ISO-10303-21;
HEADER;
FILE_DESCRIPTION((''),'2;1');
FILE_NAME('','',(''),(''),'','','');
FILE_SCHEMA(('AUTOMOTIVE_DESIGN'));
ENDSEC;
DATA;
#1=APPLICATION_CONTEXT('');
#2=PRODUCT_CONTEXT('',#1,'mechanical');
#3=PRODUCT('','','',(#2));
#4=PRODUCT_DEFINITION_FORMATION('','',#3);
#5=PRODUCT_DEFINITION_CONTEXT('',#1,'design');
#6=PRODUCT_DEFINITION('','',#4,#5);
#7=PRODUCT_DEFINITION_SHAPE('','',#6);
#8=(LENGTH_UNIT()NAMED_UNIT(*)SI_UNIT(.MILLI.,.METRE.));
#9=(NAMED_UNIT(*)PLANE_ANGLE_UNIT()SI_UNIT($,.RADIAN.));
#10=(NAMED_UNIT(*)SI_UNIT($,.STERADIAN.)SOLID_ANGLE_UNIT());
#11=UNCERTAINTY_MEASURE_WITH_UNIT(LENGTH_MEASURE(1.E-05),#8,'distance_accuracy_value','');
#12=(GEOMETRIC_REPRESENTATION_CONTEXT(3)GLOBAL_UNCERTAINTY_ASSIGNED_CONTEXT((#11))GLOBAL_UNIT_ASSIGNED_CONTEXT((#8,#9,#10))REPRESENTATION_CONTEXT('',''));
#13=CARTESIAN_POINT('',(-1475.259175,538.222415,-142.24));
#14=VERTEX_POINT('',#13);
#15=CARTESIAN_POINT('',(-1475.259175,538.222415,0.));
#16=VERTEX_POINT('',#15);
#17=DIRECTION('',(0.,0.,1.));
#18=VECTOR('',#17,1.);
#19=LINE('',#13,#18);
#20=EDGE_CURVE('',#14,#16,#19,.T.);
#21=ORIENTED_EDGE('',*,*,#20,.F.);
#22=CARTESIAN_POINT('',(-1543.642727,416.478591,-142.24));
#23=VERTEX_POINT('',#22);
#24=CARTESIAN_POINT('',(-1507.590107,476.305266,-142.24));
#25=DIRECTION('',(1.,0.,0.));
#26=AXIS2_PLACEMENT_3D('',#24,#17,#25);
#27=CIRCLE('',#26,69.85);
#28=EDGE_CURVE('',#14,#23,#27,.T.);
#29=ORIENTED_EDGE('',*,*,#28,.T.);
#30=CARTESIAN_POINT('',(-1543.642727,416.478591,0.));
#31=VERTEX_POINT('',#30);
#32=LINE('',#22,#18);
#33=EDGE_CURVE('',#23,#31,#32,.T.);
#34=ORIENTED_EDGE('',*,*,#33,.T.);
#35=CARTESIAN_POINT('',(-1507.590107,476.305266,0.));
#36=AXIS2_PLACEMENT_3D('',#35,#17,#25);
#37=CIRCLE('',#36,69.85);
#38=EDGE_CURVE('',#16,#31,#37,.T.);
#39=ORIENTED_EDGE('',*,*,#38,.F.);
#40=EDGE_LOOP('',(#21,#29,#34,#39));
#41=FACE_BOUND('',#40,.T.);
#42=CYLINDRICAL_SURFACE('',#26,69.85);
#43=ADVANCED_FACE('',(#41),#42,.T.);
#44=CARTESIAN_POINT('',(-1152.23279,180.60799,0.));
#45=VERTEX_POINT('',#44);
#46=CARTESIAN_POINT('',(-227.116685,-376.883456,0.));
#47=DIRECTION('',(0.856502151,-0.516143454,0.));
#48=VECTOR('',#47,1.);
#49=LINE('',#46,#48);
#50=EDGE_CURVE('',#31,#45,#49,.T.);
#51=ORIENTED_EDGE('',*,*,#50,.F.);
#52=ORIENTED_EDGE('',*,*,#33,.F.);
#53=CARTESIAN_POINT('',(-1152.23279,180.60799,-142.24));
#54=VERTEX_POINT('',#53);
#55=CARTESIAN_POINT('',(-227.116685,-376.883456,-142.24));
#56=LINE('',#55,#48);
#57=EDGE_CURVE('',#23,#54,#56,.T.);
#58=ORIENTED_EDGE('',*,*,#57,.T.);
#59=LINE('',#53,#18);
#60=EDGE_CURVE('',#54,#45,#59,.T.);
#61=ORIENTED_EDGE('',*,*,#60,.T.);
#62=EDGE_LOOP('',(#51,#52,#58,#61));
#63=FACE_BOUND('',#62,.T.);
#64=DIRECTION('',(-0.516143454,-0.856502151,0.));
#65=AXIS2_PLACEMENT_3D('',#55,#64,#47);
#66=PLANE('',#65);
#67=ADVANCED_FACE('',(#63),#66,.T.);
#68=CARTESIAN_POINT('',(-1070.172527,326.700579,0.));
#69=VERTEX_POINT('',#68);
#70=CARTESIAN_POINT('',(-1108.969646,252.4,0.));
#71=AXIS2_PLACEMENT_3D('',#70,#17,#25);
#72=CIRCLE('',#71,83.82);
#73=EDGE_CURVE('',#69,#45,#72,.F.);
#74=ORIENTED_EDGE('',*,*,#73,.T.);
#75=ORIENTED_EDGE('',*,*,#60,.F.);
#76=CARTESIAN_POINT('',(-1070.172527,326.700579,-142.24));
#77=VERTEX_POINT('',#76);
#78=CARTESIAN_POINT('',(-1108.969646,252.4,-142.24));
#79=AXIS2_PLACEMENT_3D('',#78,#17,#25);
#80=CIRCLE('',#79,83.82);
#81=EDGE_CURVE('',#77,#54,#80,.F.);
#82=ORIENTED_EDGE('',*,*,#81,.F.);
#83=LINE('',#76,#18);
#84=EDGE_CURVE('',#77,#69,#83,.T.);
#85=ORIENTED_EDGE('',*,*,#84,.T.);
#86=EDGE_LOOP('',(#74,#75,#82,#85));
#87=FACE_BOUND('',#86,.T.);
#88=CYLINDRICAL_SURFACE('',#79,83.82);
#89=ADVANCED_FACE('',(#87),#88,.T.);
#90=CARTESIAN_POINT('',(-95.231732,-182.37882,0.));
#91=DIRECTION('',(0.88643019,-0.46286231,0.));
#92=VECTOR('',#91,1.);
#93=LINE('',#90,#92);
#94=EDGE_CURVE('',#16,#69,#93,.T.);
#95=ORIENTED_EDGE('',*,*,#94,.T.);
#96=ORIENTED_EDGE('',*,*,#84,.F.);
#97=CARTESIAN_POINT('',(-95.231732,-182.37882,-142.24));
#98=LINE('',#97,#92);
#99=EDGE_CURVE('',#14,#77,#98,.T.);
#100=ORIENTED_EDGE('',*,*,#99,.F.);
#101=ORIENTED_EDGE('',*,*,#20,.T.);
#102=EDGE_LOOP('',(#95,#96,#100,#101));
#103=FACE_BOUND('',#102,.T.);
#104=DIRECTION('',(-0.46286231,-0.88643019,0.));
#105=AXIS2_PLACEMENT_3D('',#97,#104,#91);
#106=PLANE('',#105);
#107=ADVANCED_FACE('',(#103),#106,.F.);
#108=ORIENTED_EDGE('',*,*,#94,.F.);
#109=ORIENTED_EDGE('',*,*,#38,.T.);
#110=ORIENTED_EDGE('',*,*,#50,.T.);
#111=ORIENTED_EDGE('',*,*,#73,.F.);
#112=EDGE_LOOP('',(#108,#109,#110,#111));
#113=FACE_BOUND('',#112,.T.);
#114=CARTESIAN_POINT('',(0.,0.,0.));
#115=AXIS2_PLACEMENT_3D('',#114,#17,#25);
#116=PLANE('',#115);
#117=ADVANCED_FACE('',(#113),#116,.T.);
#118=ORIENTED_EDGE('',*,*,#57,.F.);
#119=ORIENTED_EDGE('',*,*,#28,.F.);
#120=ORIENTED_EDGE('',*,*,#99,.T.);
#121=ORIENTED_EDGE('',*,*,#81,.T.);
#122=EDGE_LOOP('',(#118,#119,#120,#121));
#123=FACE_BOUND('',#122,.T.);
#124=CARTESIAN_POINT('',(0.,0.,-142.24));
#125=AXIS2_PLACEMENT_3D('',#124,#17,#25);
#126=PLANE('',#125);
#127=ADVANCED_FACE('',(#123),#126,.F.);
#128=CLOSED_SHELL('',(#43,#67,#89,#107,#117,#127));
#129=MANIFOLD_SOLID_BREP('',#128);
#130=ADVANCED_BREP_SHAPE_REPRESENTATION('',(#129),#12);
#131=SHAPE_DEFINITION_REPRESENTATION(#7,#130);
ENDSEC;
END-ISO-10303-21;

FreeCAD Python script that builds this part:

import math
import FreeCAD as App
import Part
import Sketcher
Q = App.Units.Quantity

doc = App.newDocument("Part")
body = doc.addObject("PartDesign::Body", "Body")

# Sketch on XY plane
sketch1 = body.newObject("Sketcher::SketchObject", "Sketch")
sketch1.AttachmentSupport = (doc.getObject("XY_Plane"), [""])
sketch1.MapMode = "FlatFace"
sketch1.addGeometry(Part.LineSegment(App.Vector(-1544, 416, 0), App.Vector(-1152, 181, 0)), False)
sketch1.addGeometry(Part.ArcOfCircle(Part.Circle(App.Vector(-1109, 252, 0), App.Vector(0, 0, 1), 84), math.radians(-121), math.radians(62)), False)
sketch1.addGeometry(Part.LineSegment(App.Vector(-1070, 327, 0), App.Vector(-1475, 538, 0)), False)
sketch1.addGeometry(Part.ArcOfCircle(Part.Circle(App.Vector(-1508, 476, 0), App.Vector(0, 0, 1), 70), math.radians(62), math.radians(239)), False)
sketch1.addConstraint(Sketcher.Constraint("Tangent", 0, 2, 1, 1))
sketch1.addConstraint(Sketcher.Constraint("Tangent", 1, 2, 2, 1))
sketch1.addConstraint(Sketcher.Constraint("Tangent", 2, 2, 3, 1))
sketch1.addConstraint(Sketcher.Constraint("Tangent", 3, 2, 0, 1))
sketch1.addConstraint(Sketcher.Constraint("Radius", 1, Q("3.3 in")))
sketch1.addConstraint(Sketcher.Constraint("Radius", 3, Q("2.75 in")))
sketch1.addConstraint(Sketcher.Constraint("DistanceY", -1, 1, 1, 3, Q("252.4 mm")))
sketch1.addConstraint(Sketcher.Constraint("DistanceY", 0, 2, 3, 2, Q("235.870601 mm")))
sketch1.addConstraint(Sketcher.Constraint("DistanceX", 3, 2, 1, 2, Q("473.4702 mm")))
sketch1.addConstraint(Sketcher.Constraint("DistanceX", 0, 2, -1, 1, Q("1152.23279 mm")))
pad1 = body.newObject("PartDesign::Pad", "Pad")
pad1.Profile = sketch1
pad1.Length = Q("5.6 in")
pad1.Reversed = True

doc.recompute()
